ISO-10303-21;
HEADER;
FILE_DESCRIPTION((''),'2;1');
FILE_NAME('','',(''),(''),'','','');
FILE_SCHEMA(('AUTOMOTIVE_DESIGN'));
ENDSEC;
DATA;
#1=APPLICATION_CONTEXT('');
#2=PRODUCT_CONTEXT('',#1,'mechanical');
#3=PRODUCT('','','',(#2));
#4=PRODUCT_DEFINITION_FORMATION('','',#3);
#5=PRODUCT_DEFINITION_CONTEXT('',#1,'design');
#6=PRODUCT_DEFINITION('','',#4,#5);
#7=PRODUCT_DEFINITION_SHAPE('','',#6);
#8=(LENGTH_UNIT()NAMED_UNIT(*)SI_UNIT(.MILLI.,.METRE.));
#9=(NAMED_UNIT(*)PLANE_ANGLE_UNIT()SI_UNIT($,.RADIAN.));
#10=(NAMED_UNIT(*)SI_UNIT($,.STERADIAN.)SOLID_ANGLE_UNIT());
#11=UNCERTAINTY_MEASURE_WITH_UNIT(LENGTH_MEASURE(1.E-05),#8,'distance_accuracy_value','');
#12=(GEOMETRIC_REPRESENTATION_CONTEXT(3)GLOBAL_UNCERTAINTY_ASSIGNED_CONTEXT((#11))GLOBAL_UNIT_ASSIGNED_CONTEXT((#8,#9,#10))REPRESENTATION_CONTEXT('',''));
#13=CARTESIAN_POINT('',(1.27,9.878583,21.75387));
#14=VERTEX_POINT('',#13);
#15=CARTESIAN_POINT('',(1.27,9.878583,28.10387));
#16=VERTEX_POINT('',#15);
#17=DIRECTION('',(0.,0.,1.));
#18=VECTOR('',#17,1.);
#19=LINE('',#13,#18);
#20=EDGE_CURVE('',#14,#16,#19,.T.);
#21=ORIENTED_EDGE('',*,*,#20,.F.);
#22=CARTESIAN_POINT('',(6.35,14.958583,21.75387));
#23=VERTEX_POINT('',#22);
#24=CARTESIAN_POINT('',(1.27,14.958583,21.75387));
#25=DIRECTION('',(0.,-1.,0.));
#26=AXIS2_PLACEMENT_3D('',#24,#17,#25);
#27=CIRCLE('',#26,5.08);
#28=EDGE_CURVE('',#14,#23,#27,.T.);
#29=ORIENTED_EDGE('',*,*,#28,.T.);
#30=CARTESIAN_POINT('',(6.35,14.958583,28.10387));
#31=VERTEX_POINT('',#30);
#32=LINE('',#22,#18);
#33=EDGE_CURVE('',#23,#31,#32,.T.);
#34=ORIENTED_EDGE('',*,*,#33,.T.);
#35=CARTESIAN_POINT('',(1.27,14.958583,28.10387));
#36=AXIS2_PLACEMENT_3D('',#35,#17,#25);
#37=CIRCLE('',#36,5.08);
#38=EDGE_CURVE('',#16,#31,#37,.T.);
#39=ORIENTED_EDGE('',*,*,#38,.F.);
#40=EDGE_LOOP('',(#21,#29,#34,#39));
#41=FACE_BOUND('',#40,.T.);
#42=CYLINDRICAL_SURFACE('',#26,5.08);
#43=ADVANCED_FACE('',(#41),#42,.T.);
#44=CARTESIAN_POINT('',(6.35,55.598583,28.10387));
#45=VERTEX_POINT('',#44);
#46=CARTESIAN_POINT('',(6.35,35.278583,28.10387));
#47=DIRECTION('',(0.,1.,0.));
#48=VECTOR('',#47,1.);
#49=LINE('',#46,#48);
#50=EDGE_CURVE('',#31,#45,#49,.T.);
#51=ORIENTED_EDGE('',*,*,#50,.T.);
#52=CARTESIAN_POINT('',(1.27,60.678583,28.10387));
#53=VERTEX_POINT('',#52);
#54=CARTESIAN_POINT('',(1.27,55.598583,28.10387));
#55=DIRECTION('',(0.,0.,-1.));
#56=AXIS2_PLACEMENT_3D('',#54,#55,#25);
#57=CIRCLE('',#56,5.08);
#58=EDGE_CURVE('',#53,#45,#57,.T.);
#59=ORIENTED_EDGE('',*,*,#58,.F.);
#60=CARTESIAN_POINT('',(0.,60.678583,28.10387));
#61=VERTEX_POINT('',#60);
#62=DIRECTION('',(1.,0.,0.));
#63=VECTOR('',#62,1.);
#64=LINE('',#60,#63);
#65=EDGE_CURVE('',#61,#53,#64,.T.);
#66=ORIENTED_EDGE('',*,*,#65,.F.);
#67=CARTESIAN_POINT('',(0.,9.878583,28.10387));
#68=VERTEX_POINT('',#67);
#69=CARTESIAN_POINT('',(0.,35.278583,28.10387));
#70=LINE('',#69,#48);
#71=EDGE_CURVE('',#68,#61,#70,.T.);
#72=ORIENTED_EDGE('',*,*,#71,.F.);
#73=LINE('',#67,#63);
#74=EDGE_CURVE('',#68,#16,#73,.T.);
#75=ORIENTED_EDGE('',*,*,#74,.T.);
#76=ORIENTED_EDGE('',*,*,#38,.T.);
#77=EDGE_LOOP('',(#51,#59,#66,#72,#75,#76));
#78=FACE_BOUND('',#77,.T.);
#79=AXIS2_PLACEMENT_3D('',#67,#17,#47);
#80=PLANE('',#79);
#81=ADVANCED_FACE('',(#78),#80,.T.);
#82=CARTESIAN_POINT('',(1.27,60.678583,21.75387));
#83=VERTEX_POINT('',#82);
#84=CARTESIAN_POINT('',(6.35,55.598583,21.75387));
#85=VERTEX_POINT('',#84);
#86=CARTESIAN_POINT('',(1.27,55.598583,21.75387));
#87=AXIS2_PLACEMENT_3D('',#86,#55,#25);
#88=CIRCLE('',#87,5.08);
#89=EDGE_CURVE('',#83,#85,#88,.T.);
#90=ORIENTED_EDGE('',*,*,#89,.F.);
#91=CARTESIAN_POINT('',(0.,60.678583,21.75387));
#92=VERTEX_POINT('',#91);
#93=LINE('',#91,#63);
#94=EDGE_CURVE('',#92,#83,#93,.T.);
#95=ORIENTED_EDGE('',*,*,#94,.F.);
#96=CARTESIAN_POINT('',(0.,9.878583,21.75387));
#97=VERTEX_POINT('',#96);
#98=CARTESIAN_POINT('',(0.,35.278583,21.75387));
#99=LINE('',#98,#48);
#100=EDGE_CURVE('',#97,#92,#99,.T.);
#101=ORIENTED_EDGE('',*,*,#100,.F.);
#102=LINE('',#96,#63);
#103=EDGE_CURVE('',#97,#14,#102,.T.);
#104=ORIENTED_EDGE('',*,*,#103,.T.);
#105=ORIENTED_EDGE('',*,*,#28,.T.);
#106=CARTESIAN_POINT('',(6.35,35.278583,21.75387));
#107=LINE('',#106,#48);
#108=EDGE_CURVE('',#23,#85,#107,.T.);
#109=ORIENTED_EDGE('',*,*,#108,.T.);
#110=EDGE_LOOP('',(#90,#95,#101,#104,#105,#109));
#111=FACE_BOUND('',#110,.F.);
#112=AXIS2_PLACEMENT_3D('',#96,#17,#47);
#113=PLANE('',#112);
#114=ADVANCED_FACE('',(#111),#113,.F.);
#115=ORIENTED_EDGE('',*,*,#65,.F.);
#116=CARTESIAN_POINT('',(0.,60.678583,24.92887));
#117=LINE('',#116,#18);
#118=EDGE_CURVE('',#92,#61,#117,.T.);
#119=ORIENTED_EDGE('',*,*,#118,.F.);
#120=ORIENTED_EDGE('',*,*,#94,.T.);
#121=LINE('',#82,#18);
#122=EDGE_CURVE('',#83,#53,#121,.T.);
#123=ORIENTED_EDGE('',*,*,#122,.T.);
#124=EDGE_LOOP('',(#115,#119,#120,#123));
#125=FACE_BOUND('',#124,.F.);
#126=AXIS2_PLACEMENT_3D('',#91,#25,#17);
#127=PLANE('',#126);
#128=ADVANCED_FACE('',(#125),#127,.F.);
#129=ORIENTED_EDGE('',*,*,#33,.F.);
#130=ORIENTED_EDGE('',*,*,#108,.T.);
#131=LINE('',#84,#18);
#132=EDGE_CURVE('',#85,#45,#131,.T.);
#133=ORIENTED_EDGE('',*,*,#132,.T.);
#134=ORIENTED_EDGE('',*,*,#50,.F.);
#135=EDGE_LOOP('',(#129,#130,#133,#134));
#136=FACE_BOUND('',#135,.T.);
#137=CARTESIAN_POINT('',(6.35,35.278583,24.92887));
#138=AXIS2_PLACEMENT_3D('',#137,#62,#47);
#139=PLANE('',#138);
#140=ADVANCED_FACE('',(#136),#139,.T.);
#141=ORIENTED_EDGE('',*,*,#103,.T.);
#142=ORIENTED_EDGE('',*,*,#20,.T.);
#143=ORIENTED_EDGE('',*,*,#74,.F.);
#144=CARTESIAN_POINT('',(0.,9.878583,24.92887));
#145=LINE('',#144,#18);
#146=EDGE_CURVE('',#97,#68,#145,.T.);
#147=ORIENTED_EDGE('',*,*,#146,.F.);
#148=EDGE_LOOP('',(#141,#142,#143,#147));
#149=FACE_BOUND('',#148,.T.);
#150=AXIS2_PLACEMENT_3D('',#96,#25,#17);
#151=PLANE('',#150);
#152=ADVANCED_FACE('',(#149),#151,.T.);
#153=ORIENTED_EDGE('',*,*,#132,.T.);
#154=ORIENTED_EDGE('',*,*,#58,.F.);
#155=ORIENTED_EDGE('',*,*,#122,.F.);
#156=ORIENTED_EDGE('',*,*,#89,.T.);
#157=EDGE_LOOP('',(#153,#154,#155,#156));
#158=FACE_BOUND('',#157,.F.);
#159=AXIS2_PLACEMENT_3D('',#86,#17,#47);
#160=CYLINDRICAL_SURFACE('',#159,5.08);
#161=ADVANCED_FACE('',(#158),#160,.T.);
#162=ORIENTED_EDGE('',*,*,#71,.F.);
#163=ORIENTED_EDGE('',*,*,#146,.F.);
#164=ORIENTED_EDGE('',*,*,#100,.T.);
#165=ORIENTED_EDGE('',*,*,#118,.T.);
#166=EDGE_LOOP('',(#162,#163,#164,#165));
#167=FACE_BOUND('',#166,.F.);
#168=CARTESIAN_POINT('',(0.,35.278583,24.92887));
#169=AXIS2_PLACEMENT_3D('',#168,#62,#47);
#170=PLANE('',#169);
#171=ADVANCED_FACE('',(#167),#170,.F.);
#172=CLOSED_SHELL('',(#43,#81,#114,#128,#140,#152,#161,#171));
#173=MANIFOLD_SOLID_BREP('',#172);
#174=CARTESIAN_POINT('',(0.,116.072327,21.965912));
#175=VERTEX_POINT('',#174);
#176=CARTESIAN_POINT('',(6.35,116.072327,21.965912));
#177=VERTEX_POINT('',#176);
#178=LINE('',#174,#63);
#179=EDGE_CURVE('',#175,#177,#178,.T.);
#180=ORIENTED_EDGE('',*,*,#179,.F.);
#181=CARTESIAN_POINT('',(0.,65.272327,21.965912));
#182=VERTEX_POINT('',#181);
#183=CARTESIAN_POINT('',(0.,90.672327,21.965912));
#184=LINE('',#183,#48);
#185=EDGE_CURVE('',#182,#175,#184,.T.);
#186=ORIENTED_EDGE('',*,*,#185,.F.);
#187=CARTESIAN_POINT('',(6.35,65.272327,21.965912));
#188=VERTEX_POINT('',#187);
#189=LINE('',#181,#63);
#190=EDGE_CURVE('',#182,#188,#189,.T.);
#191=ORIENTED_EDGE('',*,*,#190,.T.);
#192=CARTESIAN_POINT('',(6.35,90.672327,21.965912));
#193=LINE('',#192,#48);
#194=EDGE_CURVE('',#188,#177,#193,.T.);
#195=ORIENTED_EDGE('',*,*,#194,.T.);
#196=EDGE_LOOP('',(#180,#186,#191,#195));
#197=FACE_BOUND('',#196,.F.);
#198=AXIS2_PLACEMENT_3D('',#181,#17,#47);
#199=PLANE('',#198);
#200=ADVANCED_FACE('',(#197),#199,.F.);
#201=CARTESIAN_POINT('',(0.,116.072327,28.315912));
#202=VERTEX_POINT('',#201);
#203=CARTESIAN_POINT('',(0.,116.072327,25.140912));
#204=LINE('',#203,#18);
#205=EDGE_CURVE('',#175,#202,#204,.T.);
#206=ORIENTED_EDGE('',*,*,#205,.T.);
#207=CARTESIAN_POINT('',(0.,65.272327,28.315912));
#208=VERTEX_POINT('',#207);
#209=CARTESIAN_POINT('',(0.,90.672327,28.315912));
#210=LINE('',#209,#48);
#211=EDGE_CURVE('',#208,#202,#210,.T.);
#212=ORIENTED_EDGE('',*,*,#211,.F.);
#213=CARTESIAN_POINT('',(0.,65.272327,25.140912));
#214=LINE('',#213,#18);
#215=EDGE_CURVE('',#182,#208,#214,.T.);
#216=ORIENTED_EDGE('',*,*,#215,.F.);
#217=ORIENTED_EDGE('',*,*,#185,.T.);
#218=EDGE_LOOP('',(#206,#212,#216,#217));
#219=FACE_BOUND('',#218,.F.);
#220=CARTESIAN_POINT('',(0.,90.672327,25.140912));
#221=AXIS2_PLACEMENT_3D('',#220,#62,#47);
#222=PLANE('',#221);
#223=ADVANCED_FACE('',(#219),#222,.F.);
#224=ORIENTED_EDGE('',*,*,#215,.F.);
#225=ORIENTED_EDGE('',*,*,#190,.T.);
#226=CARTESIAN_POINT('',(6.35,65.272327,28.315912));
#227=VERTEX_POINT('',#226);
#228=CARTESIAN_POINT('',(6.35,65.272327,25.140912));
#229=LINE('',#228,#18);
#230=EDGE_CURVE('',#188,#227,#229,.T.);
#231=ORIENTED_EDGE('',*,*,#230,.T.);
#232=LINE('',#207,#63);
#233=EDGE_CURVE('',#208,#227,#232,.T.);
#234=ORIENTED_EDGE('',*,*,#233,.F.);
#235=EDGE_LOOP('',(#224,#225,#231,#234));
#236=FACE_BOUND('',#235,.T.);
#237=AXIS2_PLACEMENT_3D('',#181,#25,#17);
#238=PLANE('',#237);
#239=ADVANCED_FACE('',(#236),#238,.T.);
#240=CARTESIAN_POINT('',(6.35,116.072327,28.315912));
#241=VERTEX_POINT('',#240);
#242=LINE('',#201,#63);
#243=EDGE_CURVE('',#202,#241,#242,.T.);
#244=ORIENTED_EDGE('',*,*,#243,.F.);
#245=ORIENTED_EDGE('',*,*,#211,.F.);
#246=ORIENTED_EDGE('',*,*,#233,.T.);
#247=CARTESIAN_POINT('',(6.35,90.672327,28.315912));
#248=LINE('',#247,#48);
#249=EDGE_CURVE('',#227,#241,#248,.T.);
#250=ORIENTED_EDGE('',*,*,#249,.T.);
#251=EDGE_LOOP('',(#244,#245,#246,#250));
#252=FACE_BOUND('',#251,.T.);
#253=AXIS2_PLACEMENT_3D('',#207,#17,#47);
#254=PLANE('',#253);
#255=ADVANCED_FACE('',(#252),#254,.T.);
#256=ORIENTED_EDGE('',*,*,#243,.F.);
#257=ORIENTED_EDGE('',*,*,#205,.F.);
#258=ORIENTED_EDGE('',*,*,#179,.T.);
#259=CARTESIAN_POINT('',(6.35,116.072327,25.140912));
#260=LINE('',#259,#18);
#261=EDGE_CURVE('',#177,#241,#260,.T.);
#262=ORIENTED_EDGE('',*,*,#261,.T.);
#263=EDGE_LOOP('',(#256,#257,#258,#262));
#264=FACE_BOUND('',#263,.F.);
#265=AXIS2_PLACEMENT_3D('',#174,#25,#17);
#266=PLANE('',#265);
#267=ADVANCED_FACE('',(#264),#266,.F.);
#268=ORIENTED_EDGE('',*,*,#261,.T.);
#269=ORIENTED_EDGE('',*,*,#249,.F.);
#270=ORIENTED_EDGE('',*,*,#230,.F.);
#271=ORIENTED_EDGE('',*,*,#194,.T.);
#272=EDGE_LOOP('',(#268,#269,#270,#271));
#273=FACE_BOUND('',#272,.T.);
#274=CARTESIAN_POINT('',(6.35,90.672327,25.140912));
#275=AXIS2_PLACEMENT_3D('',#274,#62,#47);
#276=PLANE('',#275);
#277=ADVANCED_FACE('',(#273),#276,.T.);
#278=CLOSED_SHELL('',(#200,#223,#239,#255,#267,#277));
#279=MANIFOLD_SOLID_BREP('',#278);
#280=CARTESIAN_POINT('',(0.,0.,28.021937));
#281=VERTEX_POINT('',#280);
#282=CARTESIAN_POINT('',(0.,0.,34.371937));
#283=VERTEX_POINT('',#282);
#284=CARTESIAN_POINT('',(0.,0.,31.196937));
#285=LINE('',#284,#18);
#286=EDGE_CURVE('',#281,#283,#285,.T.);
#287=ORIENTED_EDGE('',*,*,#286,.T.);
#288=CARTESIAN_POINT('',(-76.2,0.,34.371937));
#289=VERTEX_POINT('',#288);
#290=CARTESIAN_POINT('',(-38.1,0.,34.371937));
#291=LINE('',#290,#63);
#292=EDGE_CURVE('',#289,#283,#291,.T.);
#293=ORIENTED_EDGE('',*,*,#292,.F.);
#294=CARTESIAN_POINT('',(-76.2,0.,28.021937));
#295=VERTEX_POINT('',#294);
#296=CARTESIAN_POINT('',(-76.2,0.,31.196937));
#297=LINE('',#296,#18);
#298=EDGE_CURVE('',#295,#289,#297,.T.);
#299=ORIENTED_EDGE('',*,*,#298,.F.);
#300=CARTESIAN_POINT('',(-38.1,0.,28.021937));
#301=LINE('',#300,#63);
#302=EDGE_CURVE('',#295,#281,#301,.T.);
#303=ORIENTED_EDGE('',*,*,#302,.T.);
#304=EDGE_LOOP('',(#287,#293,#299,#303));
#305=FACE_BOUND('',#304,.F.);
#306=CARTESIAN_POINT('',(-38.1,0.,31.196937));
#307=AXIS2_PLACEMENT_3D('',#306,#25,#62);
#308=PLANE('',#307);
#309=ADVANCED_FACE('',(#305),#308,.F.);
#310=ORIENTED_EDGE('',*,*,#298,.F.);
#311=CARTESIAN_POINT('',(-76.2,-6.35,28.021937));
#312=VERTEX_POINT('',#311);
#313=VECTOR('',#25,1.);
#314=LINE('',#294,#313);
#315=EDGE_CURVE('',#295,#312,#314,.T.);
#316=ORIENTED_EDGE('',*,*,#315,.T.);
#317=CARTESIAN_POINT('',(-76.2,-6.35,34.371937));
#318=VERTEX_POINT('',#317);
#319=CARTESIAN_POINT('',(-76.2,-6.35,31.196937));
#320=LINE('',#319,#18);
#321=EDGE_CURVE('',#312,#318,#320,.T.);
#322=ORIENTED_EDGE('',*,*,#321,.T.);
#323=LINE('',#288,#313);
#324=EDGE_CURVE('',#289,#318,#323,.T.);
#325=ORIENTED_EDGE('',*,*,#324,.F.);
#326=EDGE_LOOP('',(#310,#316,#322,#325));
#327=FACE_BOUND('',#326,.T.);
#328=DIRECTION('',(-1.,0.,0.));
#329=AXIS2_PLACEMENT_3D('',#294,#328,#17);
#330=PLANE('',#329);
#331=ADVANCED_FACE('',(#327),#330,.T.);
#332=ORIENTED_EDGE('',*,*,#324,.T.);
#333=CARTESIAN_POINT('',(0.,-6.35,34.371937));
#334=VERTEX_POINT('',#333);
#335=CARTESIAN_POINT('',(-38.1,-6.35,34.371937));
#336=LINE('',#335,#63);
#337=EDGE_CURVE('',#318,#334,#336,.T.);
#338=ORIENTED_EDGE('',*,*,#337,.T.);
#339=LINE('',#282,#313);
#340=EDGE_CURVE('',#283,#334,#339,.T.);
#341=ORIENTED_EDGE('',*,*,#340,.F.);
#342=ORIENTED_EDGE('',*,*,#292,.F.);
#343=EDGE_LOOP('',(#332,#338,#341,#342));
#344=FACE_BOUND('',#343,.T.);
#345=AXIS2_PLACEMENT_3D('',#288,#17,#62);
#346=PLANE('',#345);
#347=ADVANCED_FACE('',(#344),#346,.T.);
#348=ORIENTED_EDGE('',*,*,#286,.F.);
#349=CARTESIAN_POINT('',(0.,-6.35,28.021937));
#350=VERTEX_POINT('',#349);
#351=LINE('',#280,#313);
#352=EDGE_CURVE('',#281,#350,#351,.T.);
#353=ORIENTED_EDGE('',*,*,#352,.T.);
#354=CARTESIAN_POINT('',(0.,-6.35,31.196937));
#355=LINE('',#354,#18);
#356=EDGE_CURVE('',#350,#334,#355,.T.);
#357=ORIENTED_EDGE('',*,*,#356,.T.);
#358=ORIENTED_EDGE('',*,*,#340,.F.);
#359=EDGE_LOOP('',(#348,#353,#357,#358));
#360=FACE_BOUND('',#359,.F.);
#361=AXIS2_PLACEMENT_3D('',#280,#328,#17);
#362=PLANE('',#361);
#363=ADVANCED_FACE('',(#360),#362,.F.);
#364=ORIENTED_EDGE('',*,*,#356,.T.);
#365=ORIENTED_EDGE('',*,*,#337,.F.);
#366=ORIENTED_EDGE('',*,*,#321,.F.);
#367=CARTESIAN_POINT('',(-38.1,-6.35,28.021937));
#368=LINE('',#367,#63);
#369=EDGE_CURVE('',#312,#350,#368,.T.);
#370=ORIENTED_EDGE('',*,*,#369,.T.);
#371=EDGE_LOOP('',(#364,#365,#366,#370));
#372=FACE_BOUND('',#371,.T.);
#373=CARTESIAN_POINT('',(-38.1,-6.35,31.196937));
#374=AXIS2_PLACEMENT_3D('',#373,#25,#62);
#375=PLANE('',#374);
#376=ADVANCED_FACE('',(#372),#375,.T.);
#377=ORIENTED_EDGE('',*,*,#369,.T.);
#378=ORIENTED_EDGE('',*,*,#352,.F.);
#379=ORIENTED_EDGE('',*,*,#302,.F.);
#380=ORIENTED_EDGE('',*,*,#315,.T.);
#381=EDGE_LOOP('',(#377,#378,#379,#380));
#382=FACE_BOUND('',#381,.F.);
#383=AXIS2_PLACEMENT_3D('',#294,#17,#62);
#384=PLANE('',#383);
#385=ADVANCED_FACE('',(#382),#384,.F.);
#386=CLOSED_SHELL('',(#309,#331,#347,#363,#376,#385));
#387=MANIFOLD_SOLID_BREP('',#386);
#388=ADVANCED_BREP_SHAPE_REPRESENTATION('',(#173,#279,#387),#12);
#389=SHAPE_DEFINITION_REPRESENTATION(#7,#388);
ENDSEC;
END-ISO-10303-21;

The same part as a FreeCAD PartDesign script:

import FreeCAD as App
import Part
import Sketcher

V = App.Vector
Q = App.Units.Quantity


def edges_at(feature, points):
    """Names of the edges that pass closest to the given points."""
    edges = feature.Shape.Edges
    near = lambda p: min(range(len(edges)), key=lambda i: edges[i].distToShape(Part.Vertex(*p))[0])
    return sorted({f"Edge{near(p) + 1}" for p in points})

doc = App.newDocument("Part")
body = doc.addObject("PartDesign::Body", "Body")

# Sketch on XZ plane
sketch1 = doc.addObject("Sketcher::SketchObject", "Sketch")
body.addObject(sketch1)
sketch1.AttachmentSupport = (doc.XZ_Plane, [""])
sketch1.MapMode = "FlatFace"
sketch1.addGeometry(Part.LineSegment(V(-76.2, 34.371937, 0), V(-76.2, 28.021937, 0)), False)
sketch1.addGeometry(Part.LineSegment(V(-76.2, 28.021937, 0), V(0, 28.021937, 0)), False)
sketch1.addGeometry(Part.LineSegment(V(0, 28.021937, 0), V(0, 34.371937, 0)), False)
sketch1.addGeometry(Part.LineSegment(V(0, 34.371937, 0), V(-76.2, 34.371937, 0)), False)
sketch1.addConstraint(Sketcher.Constraint("Coincident", 0, 2, 1, 1))
sketch1.addConstraint(Sketcher.Constraint("Coincident", 1, 2, 2, 1))
sketch1.addConstraint(Sketcher.Constraint("Coincident", 2, 2, 3, 1))
sketch1.addConstraint(Sketcher.Constraint("Coincident", 3, 2, 0, 1))
sketch1.addConstraint(Sketcher.Constraint("Vertical", 0))
sketch1.addConstraint(Sketcher.Constraint("Horizontal", 1))
sketch1.addConstraint(Sketcher.Constraint("Vertical", 2))
sketch1.addConstraint(Sketcher.Constraint("Horizontal", 3))
sketch1.addConstraint(Sketcher.Constraint("PointOnObject", 1, 2, -2))
sketch1.addConstraint(Sketcher.Constraint("DistanceX", 1, 1, 1, 2, Q("3 in")))
sketch1.addConstraint(Sketcher.Constraint("DistanceY", 0, 2, 0, 1, Q("0.25 in")))
sketch1.addConstraint(Sketcher.Constraint("DistanceY", -1, 1, 0, 2, Q("28.021937 mm")))
pad1 = doc.addObject("PartDesign::Pad", "Pad")
body.addObject(pad1)
pad1.Profile = sketch1
pad1.Length = Q("0.25 in")
body2 = doc.addObject("PartDesign::Body", "Body001")

# Sketch on YZ plane
sketch2 = doc.addObject("Sketcher::SketchObject", "Sketch001")
body2.addObject(sketch2)
sketch2.AttachmentSupport = (doc.getObject("YZ_Plane001"), [""])
sketch2.MapMode = "FlatFace"
sketch2.addGeometry(Part.LineSegment(V(65.272327, 28.315912, 0), V(65.272327, 21.965912, 0)), False)
sketch2.addGeometry(Part.LineSegment(V(65.272327, 21.965912, 0), V(116.072327, 21.965912, 0)), False)
sketch2.addGeometry(Part.LineSegment(V(116.072327, 21.965912, 0), V(116.072327, 28.315912, 0)), False)
sketch2.addGeometry(Part.LineSegment(V(116.072327, 28.315912, 0), V(65.272327, 28.315912, 0)), False)
sketch2.addConstraint(Sketcher.Constraint("Coincident", 0, 2, 1, 1))
sketch2.addConstraint(Sketcher.Constraint("Coincident", 1, 2, 2, 1))
sketch2.addConstraint(Sketcher.Constraint("Coincident", 2, 2, 3, 1))
sketch2.addConstraint(Sketcher.Constraint("Coincident", 3, 2, 0, 1))
sketch2.addConstraint(Sketcher.Constraint("Vertical", 0))
sketch2.addConstraint(Sketcher.Constraint("Horizontal", 1))
sketch2.addConstraint(Sketcher.Constraint("Vertical", 2))
sketch2.addConstraint(Sketcher.Constraint("Horizontal", 3))
sketch2.addConstraint(Sketcher.Constraint("DistanceX", 1, 1, 1, 2, Q("2 in")))
sketch2.addConstraint(Sketcher.Constraint("DistanceY", 0, 2, 0, 1, Q("0.25 in")))
sketch2.addConstraint(Sketcher.Constraint("DistanceY", -1, 1, 0, 2, Q("21.965912 mm")))
sketch2.addConstraint(Sketcher.Constraint("DistanceX", -1, 1, 0, 2, Q("65.272327 mm")))
pad2 = doc.addObject("PartDesign::Pad", "Pad001")
body2.addObject(pad2)
pad2.Profile = sketch2
pad2.Length = Q("0.25 in")
body3 = doc.addObject("PartDesign::Body", "Body002")

# Sketch on YZ plane
sketch3 = doc.addObject("Sketcher::SketchObject", "Sketch002")
body3.addObject(sketch3)
sketch3.AttachmentSupport = (doc.getObject("YZ_Plane002"), [""])
sketch3.MapMode = "FlatFace"
sketch3.addGeometry(Part.LineSegment(V(9.878583, 28.10387, 0), V(9.878583, 21.75387, 0)), False)
sketch3.addGeometry(Part.LineSegment(V(9.878583, 21.75387, 0), V(60.678583, 21.75387, 0)), False)
sketch3.addGeometry(Part.LineSegment(V(60.678583, 21.75387, 0), V(60.678583, 28.10387, 0)), False)
sketch3.addGeometry(Part.LineSegment(V(60.678583, 28.10387, 0), V(9.878583, 28.10387, 0)), False)
sketch3.addConstraint(Sketcher.Constraint("Coincident", 0, 2, 1, 1))
sketch3.addConstraint(Sketcher.Constraint("Coincident", 1, 2, 2, 1))
sketch3.addConstraint(Sketcher.Constraint("Coincident", 2, 2, 3, 1))
sketch3.addConstraint(Sketcher.Constraint("Coincident", 3, 2, 0, 1))
sketch3.addConstraint(Sketcher.Constraint("Vertical", 0))
sketch3.addConstraint(Sketcher.Constraint("Horizontal", 1))
sketch3.addConstraint(Sketcher.Constraint("Vertical", 2))
sketch3.addConstraint(Sketcher.Constraint("Horizontal", 3))
sketch3.addConstraint(Sketcher.Constraint("DistanceX", 1, 1, 1, 2, Q("2 in")))
sketch3.addConstraint(Sketcher.Constraint("DistanceY", 0, 2, 0, 1, Q("0.25 in")))
sketch3.addConstraint(Sketcher.Constraint("DistanceY", -1, 1, 0, 2, Q("21.75387 mm")))
sketch3.addConstraint(Sketcher.Constraint("DistanceX", -1, 1, 0, 2, Q("9.878583 mm")))
pad3 = doc.addObject("PartDesign::Pad", "Pad002")
body3.addObject(pad3)
pad3.Profile = sketch3
pad3.Length = Q("0.25 in")
doc.recompute()

fillet = doc.addObject("PartDesign::Fillet", "Fillet")
body3.addObject(fillet)
fillet.Base = (pad3, edges_at(pad3, [(6.35, 9.879, 24.929), (6.35, 60.679, 24.929)]))
fillet.Radius = Q("0.2 in")

doc.recompute()
